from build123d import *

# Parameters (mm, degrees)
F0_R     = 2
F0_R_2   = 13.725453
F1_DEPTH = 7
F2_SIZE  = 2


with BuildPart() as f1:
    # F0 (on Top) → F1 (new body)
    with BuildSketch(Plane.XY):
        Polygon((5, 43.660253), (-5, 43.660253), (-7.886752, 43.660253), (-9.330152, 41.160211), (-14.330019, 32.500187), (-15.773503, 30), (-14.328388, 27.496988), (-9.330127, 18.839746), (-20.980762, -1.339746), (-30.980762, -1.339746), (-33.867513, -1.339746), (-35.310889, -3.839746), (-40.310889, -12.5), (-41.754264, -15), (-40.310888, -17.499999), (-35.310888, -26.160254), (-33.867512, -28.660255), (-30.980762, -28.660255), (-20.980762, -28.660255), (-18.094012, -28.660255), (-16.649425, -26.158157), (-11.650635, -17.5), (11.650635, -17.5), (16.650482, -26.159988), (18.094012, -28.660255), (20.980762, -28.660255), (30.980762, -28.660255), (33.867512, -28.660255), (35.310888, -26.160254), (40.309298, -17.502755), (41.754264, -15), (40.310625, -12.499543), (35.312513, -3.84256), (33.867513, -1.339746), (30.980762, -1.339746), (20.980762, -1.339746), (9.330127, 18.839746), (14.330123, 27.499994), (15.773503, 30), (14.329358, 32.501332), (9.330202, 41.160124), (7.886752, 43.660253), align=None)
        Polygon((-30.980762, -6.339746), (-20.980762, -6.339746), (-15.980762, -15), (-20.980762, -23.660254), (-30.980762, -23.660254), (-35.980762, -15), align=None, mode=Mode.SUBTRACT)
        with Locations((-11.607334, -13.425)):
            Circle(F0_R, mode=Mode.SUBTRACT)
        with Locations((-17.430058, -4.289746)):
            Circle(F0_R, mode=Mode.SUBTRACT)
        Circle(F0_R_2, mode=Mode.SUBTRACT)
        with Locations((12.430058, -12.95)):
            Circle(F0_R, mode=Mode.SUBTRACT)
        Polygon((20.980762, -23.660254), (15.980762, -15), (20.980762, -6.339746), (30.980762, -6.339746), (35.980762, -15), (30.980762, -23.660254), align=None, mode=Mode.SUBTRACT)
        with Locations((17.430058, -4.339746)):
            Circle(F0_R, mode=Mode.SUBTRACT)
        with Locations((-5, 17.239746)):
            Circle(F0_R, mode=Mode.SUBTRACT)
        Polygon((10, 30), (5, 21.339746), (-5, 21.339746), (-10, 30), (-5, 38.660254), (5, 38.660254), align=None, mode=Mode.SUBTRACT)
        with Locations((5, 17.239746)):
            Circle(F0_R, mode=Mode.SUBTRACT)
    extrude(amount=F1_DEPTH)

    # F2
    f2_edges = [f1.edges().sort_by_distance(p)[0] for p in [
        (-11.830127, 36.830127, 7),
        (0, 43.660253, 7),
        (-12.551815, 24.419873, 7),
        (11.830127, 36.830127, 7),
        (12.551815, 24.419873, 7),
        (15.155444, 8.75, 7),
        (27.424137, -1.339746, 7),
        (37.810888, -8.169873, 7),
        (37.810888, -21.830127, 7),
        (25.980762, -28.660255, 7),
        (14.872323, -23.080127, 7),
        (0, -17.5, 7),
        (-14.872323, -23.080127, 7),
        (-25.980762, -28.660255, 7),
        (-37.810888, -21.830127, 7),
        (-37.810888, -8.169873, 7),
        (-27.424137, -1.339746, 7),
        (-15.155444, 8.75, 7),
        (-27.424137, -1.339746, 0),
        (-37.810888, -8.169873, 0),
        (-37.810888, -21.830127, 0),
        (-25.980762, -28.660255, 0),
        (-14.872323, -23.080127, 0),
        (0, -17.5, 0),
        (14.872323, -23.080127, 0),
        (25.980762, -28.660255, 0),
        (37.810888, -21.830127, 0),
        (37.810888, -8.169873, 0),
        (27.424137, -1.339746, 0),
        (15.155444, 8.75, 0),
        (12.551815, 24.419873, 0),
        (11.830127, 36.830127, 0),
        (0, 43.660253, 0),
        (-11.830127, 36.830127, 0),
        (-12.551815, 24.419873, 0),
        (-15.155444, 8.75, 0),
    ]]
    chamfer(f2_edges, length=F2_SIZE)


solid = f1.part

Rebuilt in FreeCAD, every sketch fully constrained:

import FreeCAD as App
import Part
import Sketcher

V = App.Vector
Q = App.Units.Quantity


def edges_at(feature, points):
    """Names of the edges that pass closest to the given points."""
    edges = feature.Shape.Edges
    near = lambda p: min(range(len(edges)), key=lambda i: edges[i].distToShape(Part.Vertex(*p))[0])
    return sorted({f"Edge{near(p) + 1}" for p in points})

doc = App.newDocument("Part")
body = doc.addObject("PartDesign::Body", "Body")

# Sketch on XY plane
sketch1 = doc.addObject("Sketcher::SketchObject", "Sketch")
body.addObject(sketch1)
sketch1.AttachmentSupport = (doc.XY_Plane, [""])
sketch1.MapMode = "FlatFace"
sketch1.addGeometry(Part.LineSegment(V(-7.886752, 43.660253, 0), V(-9.330152, 41.160211, 0)), False)
sketch1.addGeometry(Part.LineSegment(V(-9.330152, 41.160211, 0), V(-14.330019, 32.500187, 0)), False)
sketch1.addGeometry(Part.LineSegment(V(-14.330019, 32.500187, 0), V(-15.773503, 30, 0)), False)
sketch1.addGeometry(Part.LineSegment(V(-15.773503, 30, 0), V(-14.328388, 27.496988, 0)), False)
sketch1.addGeometry(Part.LineSegment(V(-14.328388, 27.496988, 0), V(-9.330127, 18.839746, 0)), False)
sketch1.addGeometry(Part.LineSegment(V(-9.330127, 18.839746, 0), V(-20.980762, -1.339746, 0)), False)
sketch1.addGeometry(Part.LineSegment(V(-20.980762, -1.339746, 0), V(-33.867513, -1.339746, 0)), False)
sketch1.addGeometry(Part.LineSegment(V(-33.867513, -1.339746, 0), V(-35.310889, -3.839746, 0)), False)
sketch1.addGeometry(Part.LineSegment(V(-35.310889, -3.839746, 0), V(-40.310889, -12.5, 0)), False)
sketch1.addGeometry(Part.LineSegment(V(-40.310889, -12.5, 0), V(-41.754264, -15, 0)), False)
sketch1.addGeometry(Part.LineSegment(V(-41.754264, -15, 0), V(-40.310888, -17.499999, 0)), False)
sketch1.addGeometry(Part.LineSegment(V(-40.310888, -17.499999, 0), V(-35.310888, -26.160254, 0)), False)
sketch1.addGeometry(Part.LineSegment(V(-35.310888, -26.160254, 0), V(-33.867512, -28.660255, 0)), False)
sketch1.addGeometry(Part.LineSegment(V(-33.867512, -28.660255, 0), V(-18.094012, -28.660255, 0)), False)
sketch1.addGeometry(Part.LineSegment(V(-18.094012, -28.660255, 0), V(-16.649425, -26.158157, 0)), False)
sketch1.addGeometry(Part.LineSegment(V(-16.649425, -26.158157, 0), V(-11.650635, -17.5, 0)), False)
sketch1.addGeometry(Part.LineSegment(V(-11.650635, -17.5, 0), V(11.650635, -17.5, 0)), False)
sketch1.addGeometry(Part.LineSegment(V(11.650635, -17.5, 0), V(16.650482, -26.159988, 0)), False)
sketch1.addGeometry(Part.LineSegment(V(16.650482, -26.159988, 0), V(18.094012, -28.660255, 0)), False)
sketch1.addGeometry(Part.LineSegment(V(18.094012, -28.660255, 0), V(33.867512, -28.660255, 0)), False)
sketch1.addGeometry(Part.LineSegment(V(33.867512, -28.660255, 0), V(35.310888, -26.160254, 0)), False)
sketch1.addGeometry(Part.LineSegment(V(35.310888, -26.160254, 0), V(40.309298, -17.502755, 0)), False)
sketch1.addGeometry(Part.LineSegment(V(40.309298, -17.502755, 0), V(41.754264, -15, 0)), False)
sketch1.addGeometry(Part.LineSegment(V(41.754264, -15, 0), V(40.310625, -12.499543, 0)), False)
sketch1.addGeometry(Part.LineSegment(V(40.310625, -12.499543, 0), V(35.312513, -3.84256, 0)), False)
sketch1.addGeometry(Part.LineSegment(V(35.312513, -3.84256, 0), V(33.867513, -1.339746, 0)), False)
sketch1.addGeometry(Part.LineSegment(V(33.867513, -1.339746, 0), V(20.980762, -1.339746, 0)), False)
sketch1.addGeometry(Part.LineSegment(V(20.980762, -1.339746, 0), V(9.330127, 18.839746, 0)), False)
sketch1.addGeometry(Part.LineSegment(V(9.330127, 18.839746, 0), V(14.330123, 27.499994, 0)), False)
sketch1.addGeometry(Part.LineSegment(V(14.330123, 27.499994, 0), V(15.773503, 30, 0)), False)
sketch1.addGeometry(Part.LineSegment(V(15.773503, 30, 0), V(14.329358, 32.501332, 0)), False)
sketch1.addGeometry(Part.LineSegment(V(14.329358, 32.501332, 0), V(9.330202, 41.160124, 0)), False)
sketch1.addGeometry(Part.LineSegment(V(9.330202, 41.160124, 0), V(7.886752, 43.660253, 0)), False)
sketch1.addGeometry(Part.LineSegment(V(7.886752, 43.660253, 0), V(-7.886752, 43.660253, 0)), False)
sketch1.addGeometry(Part.LineSegment(V(-35.980762, -15, 0), V(-30.980762, -6.339746, 0)), False)
sketch1.addGeometry(Part.LineSegment(V(-30.980762, -6.339746, 0), V(-20.980762, -6.339746, 0)), False)
sketch1.addGeometry(Part.LineSegment(V(-20.980762, -6.339746, 0), V(-15.980762, -15, 0)), False)
sketch1.addGeometry(Part.LineSegment(V(-15.980762, -15, 0), V(-20.980762, -23.660254, 0)), False)
sketch1.addGeometry(Part.LineSegment(V(-20.980762, -23.660254, 0), V(-30.980762, -23.660254, 0)), False)
sketch1.addGeometry(Part.LineSegment(V(-30.980762, -23.660254, 0), V(-35.980762, -15, 0)), False)
sketch1.addGeometry(Part.Circle(V(-11.607334, -13.425, 0), V(0, 0, 1), 2), False)
sketch1.addGeometry(Part.Circle(V(-17.430058, -4.289746, 0), V(0, 0, 1), 2), False)
sketch1.addGeometry(Part.Circle(V(12.430058, -12.95, 0), V(0, 0, 1), 2), False)
sketch1.addGeometry(Part.LineSegment(V(30.980762, -23.660254, 0), V(20.980762, -23.660254, 0)), False)
sketch1.addGeometry(Part.LineSegment(V(20.980762, -23.660254, 0), V(15.980762, -15, 0)), False)
sketch1.addGeometry(Part.LineSegment(V(15.980762, -15, 0), V(20.980762, -6.339746, 0)), False)
sketch1.addGeometry(Part.LineSegment(V(20.980762, -6.339746, 0), V(30.980762, -6.339746, 0)), False)
sketch1.addGeometry(Part.LineSegment(V(30.980762, -6.339746, 0), V(35.980762, -15, 0)), False)
sketch1.addGeometry(Part.LineSegment(V(35.980762, -15, 0), V(30.980762, -23.660254, 0)), False)
sketch1.addGeometry(Part.Circle(V(17.430058, -4.339746, 0), V(0, 0, 1), 2), False)
sketch1.addGeometry(Part.Circle(V(0, 0, 0), V(0, 0, 1), 13.725453), False)
sketch1.addGeometry(Part.Circle(V(-5, 17.239746, 0), V(0, 0, 1), 2), False)
sketch1.addGeometry(Part.Circle(V(5, 17.239746, 0), V(0, 0, 1), 2), False)
sketch1.addGeometry(Part.LineSegment(V(5, 38.660254, 0), V(10, 30, 0)), False)
sketch1.addGeometry(Part.LineSegment(V(10, 30, 0), V(5, 21.339746, 0)), False)
sketch1.addGeometry(Part.LineSegment(V(5, 21.339746, 0), V(-5, 21.339746, 0)), False)
sketch1.addGeometry(Part.LineSegment(V(-5, 21.339746, 0), V(-10, 30, 0)), False)
sketch1.addGeometry(Part.LineSegment(V(-10, 30, 0), V(-5, 38.660254, 0)), False)
sketch1.addGeometry(Part.LineSegment(V(-5, 38.660254, 0), V(5, 38.660254, 0)), False)
sketch1.addConstraint(Sketcher.Constraint("Coincident", 0, 2, 1, 1))
sketch1.addConstraint(Sketcher.Constraint("Coincident", 1, 2, 2, 1))
sketch1.addConstraint(Sketcher.Constraint("Coincident", 2, 2, 3, 1))
sketch1.addConstraint(Sketcher.Constraint("Coincident", 3, 2, 4, 1))
sketch1.addConstraint(Sketcher.Constraint("Coincident", 4, 2, 5, 1))
sketch1.addConstraint(Sketcher.Constraint("Coincident", 5, 2, 6, 1))
sketch1.addConstraint(Sketcher.Constraint("Coincident", 6, 2, 7, 1))
sketch1.addConstraint(Sketcher.Constraint("Coincident", 7, 2, 8, 1))
sketch1.addConstraint(Sketcher.Constraint("Coincident", 8, 2, 9, 1))
sketch1.addConstraint(Sketcher.Constraint("Coincident", 9, 2, 10, 1))
sketch1.addConstraint(Sketcher.Constraint("Coincident", 10, 2, 11, 1))
sketch1.addConstraint(Sketcher.Constraint("Coincident", 11, 2, 12, 1))
sketch1.addConstraint(Sketcher.Constraint("Coincident", 12, 2, 13, 1))
sketch1.addConstraint(Sketcher.Constraint("Coincident", 13, 2, 14, 1))
sketch1.addConstraint(Sketcher.Constraint("Coincident", 14, 2, 15, 1))
sketch1.addConstraint(Sketcher.Constraint("Coincident", 15, 2, 16, 1))
sketch1.addConstraint(Sketcher.Constraint("Coincident", 16, 2, 17, 1))
sketch1.addConstraint(Sketcher.Constraint("Coincident", 17, 2, 18, 1))
sketch1.addConstraint(Sketcher.Constraint("Coincident", 18, 2, 19, 1))
sketch1.addConstraint(Sketcher.Constraint("Coincident", 19, 2, 20, 1))
sketch1.addConstraint(Sketcher.Constraint("Coincident", 20, 2, 21, 1))
sketch1.addConstraint(Sketcher.Constraint("Coincident", 21, 2, 22, 1))
sketch1.addConstraint(Sketcher.Constraint("Coincident", 22, 2, 23, 1))
sketch1.addConstraint(Sketcher.Constraint("Coincident", 23, 2, 24, 1))
sketch1.addConstraint(Sketcher.Constraint("Coincident", 24, 2, 25, 1))
sketch1.addConstraint(Sketcher.Constraint("Coincident", 25, 2, 26, 1))
sketch1.addConstraint(Sketcher.Constraint("Coincident", 26, 2, 27, 1))
sketch1.addConstraint(Sketcher.Constraint("Coincident", 27, 2, 28, 1))
sketch1.addConstraint(Sketcher.Constraint("Coincident", 28, 2, 29, 1))
sketch1.addConstraint(Sketcher.Constraint("Coincident", 29, 2, 30, 1))
sketch1.addConstraint(Sketcher.Constraint("Coincident", 30, 2, 31, 1))
sketch1.addConstraint(Sketcher.Constraint("Coincident", 31, 2, 32, 1))
sketch1.addConstraint(Sketcher.Constraint("Coincident", 32, 2, 33, 1))
sketch1.addConstraint(Sketcher.Constraint("Coincident", 33, 2, 0, 1))
sketch1.addConstraint(Sketcher.Constraint("Coincident", 34, 2, 35, 1))
sketch1.addConstraint(Sketcher.Constraint("Coincident", 35, 2, 36, 1))
sketch1.addConstraint(Sketcher.Constraint("Coincident", 36, 2, 37, 1))
sketch1.addConstraint(Sketcher.Constraint("Coincident", 37, 2, 38, 1))
sketch1.addConstraint(Sketcher.Constraint("Coincident", 38, 2, 39, 1))
sketch1.addConstraint(Sketcher.Constraint("Coincident", 39, 2, 34, 1))
sketch1.addConstraint(Sketcher.Constraint("Coincident", 43, 2, 44, 1))
sketch1.addConstraint(Sketcher.Constraint("Coincident", 44, 2, 45, 1))
sketch1.addConstraint(Sketcher.Constraint("Coincident", 45, 2, 46, 1))
sketch1.addConstraint(Sketcher.Constraint("Coincident", 46, 2, 47, 1))
sketch1.addConstraint(Sketcher.Constraint("Coincident", 47, 2, 48, 1))
sketch1.addConstraint(Sketcher.Constraint("Coincident", 48, 2, 43, 1))
sketch1.addConstraint(Sketcher.Constraint("Coincident", 53, 2, 54, 1))
sketch1.addConstraint(Sketcher.Constraint("Coincident", 54, 2, 55, 1))
sketch1.addConstraint(Sketcher.Constraint("Coincident", 55, 2, 56, 1))
sketch1.addConstraint(Sketcher.Constraint("Coincident", 56, 2, 57, 1))
sketch1.addConstraint(Sketcher.Constraint("Coincident", 57, 2, 58, 1))
sketch1.addConstraint(Sketcher.Constraint("Coincident", 58, 2, 53, 1))
sketch1.addConstraint(Sketcher.Constraint("Horizontal", 6))
sketch1.addConstraint(Sketcher.Constraint("Horizontal", 13))
sketch1.addConstraint(Sketcher.Constraint("Horizontal", 16))
sketch1.addConstraint(Sketcher.Constraint("Horizontal", 19))
sketch1.addConstraint(Sketcher.Constraint("Horizontal", 26))
sketch1.addConstraint(Sketcher.Constraint("Horizontal", 33))
sketch1.addConstraint(Sketcher.Constraint("Horizontal", 35))
sketch1.addConstraint(Sketcher.Constraint("Horizontal", 38))
sketch1.addConstraint(Sketcher.Constraint("Horizontal", 43))
sketch1.addConstraint(Sketcher.Constraint("Horizontal", 46))
sketch1.addConstraint(Sketcher.Constraint("Horizontal", 55))
sketch1.addConstraint(Sketcher.Constraint("Horizontal", 58))
sketch1.addConstraint(Sketcher.Constraint("Coincident", 50, 3, -1, 1))
sketch1.addConstraint(Sketcher.Constraint("Equal", 40, 41))
sketch1.addConstraint(Sketcher.Constraint("Equal", 41, 42))
sketch1.addConstraint(Sketcher.Constraint("Equal", 42, 49))
sketch1.addConstraint(Sketcher.Constraint("Equal", 49, 51))
sketch1.addConstraint(Sketcher.Constraint("Equal", 51, 52))
sketch1.addConstraint(Sketcher.Constraint("Symmetric", 51, 3, 52, 3, -2))
sketch1.addConstraint(Sketcher.Constraint("Symmetric", 13, 2, 18, 2, -2))
sketch1.addConstraint(Sketcher.Constraint("Symmetric", 11, 2, 20, 2, -2))
sketch1.addConstraint(Sketcher.Constraint("Symmetric", 9, 2, 22, 2, -2))
sketch1.addConstraint(Sketcher.Constraint("Symmetric", 6, 2, 25, 2, -2))
sketch1.addConstraint(Sketcher.Constraint("Symmetric", 4, 2, 27, 2, -2))
sketch1.addConstraint(Sketcher.Constraint("Symmetric", 2, 2, 29, 2, -2))
sketch1.addConstraint(Sketcher.Constraint("Symmetric", 37, 2, 43, 2, -2))
sketch1.addConstraint(Sketcher.Constraint("Symmetric", 36, 2, 44, 2, -2))
sketch1.addConstraint(Sketcher.Constraint("Symmetric", 35, 2, 45, 2, -2))
sketch1.addConstraint(Sketcher.Constraint("Symmetric", 39, 2, 47, 2, -2))
sketch1.addConstraint(Sketcher.Constraint("Symmetric", 53, 2, 56, 2, -2))
sketch1.addConstraint(Sketcher.Constraint("Parallel", 0, 1))
sketch1.addConstraint(Sketcher.Constraint("Parallel", 1, 2))
sketch1.addConstraint(Sketcher.Constraint("Parallel", 3, 4))
sketch1.addConstraint(Sketcher.Constraint("Parallel", 2, 5))
sketch1.addConstraint(Sketcher.Constraint("Parallel", 5, 7))
sketch1.addConstraint(Sketcher.Constraint("Parallel", 7, 8))
sketch1.addConstraint(Sketcher.Constraint("Parallel", 8, 9))
sketch1.addConstraint(Sketcher.Constraint("Parallel", 4, 10))
sketch1.addConstraint(Sketcher.Constraint("Parallel", 10, 11))
sketch1.addConstraint(Sketcher.Constraint("Parallel", 11, 12))
sketch1.addConstraint(Sketcher.Constraint("Parallel", 9, 14))
sketch1.addConstraint(Sketcher.Constraint("Parallel", 14, 15))
sketch1.addConstraint(Sketcher.Constraint("Parallel", 12, 17))
sketch1.addConstraint(Sketcher.Constraint("Parallel", 17, 18))
sketch1.addConstraint(Sketcher.Constraint("Parallel", 15, 20))
sketch1.addConstraint(Sketcher.Constraint("Parallel", 20, 21))
sketch1.addConstraint(Sketcher.Constraint("Parallel", 21, 22))
sketch1.addConstraint(Sketcher.Constraint("Parallel", 18, 23))
sketch1.addConstraint(Sketcher.Constraint("Parallel", 23, 24))
sketch1.addConstraint(Sketcher.Constraint("Parallel", 25, 27))
sketch1.addConstraint(Sketcher.Constraint("Parallel", 22, 28))
sketch1.addConstraint(Sketcher.Constraint("Parallel", 27, 30))
sketch1.addConstraint(Sketcher.Constraint("Parallel", 30, 31))
sketch1.addConstraint(Sketcher.Constraint("Parallel", 31, 32))
sketch1.addConstraint(Sketcher.Constraint("Parallel", 29, 34))
sketch1.addConstraint(Sketcher.Constraint("Parallel", 32, 36))
sketch1.addConstraint(Sketcher.Constraint("Parallel", 34, 37))
sketch1.addConstraint(Sketcher.Constraint("Parallel", 36, 39))
sketch1.addConstraint(Sketcher.Constraint("Parallel", 44, 47))
sketch1.addConstraint(Sketcher.Constraint("Parallel", 45, 48))
sketch1.addConstraint(Sketcher.Constraint("Parallel", 47, 53))
sketch1.addConstraint(Sketcher.Constraint("Parallel", 48, 54))
sketch1.addConstraint(Sketcher.Constraint("Parallel", 53, 56))
sketch1.addConstraint(Sketcher.Constraint("Parallel", 54, 57))
sketch1.addConstraint(Sketcher.Constraint("Horizontal", 10, 2, 15, 2))
sketch1.addConstraint(Sketcher.Constraint("Horizontal", 22, 2, 36, 2))
sketch1.addConstraint(Sketcher.Constraint("Horizontal", 36, 2, 39, 2))
sketch1.addConstraint(Sketcher.Constraint("Horizontal", 29, 2, 53, 2))
sketch1.addConstraint(Sketcher.Constraint("Vertical", 8, 2, 10, 2))
sketch1.addConstraint(Sketcher.Constraint("Vertical", 7, 2, 11, 2))
sketch1.addConstraint(Sketcher.Constraint("Vertical", 6, 2, 12, 2))
sketch1.addConstraint(Sketcher.Constraint("Vertical", 5, 2, 35, 2))
sketch1.addConstraint(Sketcher.Constraint("Vertical", 35, 2, 37, 2))
sketch1.addConstraint(Sketcher.Constraint("Vertical", 52, 3, 54, 2))
sketch1.addConstraint(Sketcher.Constraint("Vertical", 55, 2, 57, 2))
sketch1.addConstraint(Sketcher.Constraint("Equal", 46, 55))
sketch1.addConstraint(Sketcher.Constraint("Equal", 7, 9))
sketch1.addConstraint(Sketcher.Constraint("Equal", 11, 34))
sketch1.addConstraint(Sketcher.Constraint("Equal", 48, 53))
sketch1.addConstraint(Sketcher.Constraint("Diameter", 40, Q("4 mm")))
sketch1.addConstraint(Sketcher.Constraint("DistanceX", 35, 1, 35, 2, Q("10 mm")))
sketch1.addConstraint(Sketcher.Constraint("Angle", 0, Q("-120.000001 deg")))
sketch1.addConstraint(Sketcher.Constraint("Distance", 8, Q("10 mm")))
sketch1.addConstraint(Sketcher.Constraint("DistanceY", -1, 1, 2, 2, Q("30 mm")))
sketch1.addConstraint(Sketcher.Constraint("DistanceY", 9, 2, -1, 1, Q("15 mm")))
sketch1.addConstraint(Sketcher.Constraint("DistanceX", 42, 3, 49, 3, Q("5 mm")))
sketch1.addConstraint(Sketcher.Constraint("DistanceY", 10, 2, 8, 2, Q("4.999999 mm")))
sketch1.addConstraint(Sketcher.Constraint("DistanceY", 49, 3, 25, 2, Q("3 mm")))
sketch1.addConstraint(Sketcher.Constraint("DistanceY", 57, 2, 33, 2, Q("4.999999 mm")))
sketch1.addConstraint(Sketcher.Constraint("DistanceY", 51, 3, 4, 2, Q("1.6 mm")))
sketch1.addConstraint(Sketcher.Constraint("DistanceY", 52, 3, 54, 2, Q("4.1 mm")))
sketch1.addConstraint(Sketcher.Constraint("Distance", 25, Q("2.890001 mm")))
sketch1.addConstraint(Sketcher.Constraint("DistanceY", 42, 3, -1, 1, Q("12.95 mm")))
sketch1.addConstraint(Sketcher.Constraint("DistanceY", 49, 3, 41, 3, Q("0.05 mm")))
sketch1.addConstraint(Sketcher.Constraint("Diameter", 50, Q("27.450906 mm")))
sketch1.addConstraint(Sketcher.Constraint("DistanceX", 13, 1, 13, 2, Q("15.7735 mm")))
sketch1.addConstraint(Sketcher.Constraint("DistanceY", 40, 3, -1, 1, Q("13.425 mm")))
sketch1.addConstraint(Sketcher.Constraint("Distance", 0, Q("2.8868 mm")))
sketch1.addConstraint(Sketcher.Constraint("Distance", 32, Q("2.8869 mm")))
sketch1.addConstraint(Sketcher.Constraint("DistanceX", 6, 2, 6, 1, Q("12.886751 mm")))
sketch1.addConstraint(Sketcher.Constraint("DistanceX", 16, 1, 16, 2, Q("23.30127 mm")))
sketch1.addConstraint(Sketcher.Constraint("DistanceY", 3, 2, 1, 2, Q("5.003199 mm")))
sketch1.addConstraint(Sketcher.Constraint("DistanceY", 13, 2, 14, 2, Q("2.502098 mm")))
sketch1.addConstraint(Sketcher.Constraint("DistanceX", 15, 2, 40, 3, Q("0.043301 mm")))
sketch1.addConstraint(Sketcher.Constraint("DistanceY", 20, 2, 21, 2, Q("8.657499 mm")))
sketch1.addConstraint(Sketcher.Constraint("Distance", 3, Q("2.890229 mm")))
sketch1.addConstraint(Sketcher.Constraint("Distance", 18, Q("2.88706 mm")))
sketch1.addConstraint(Sketcher.Constraint("Distance", 23, Q("2.887279 mm")))
sketch1.addConstraint(Sketcher.Constraint("Distance", 29, Q("2.886759 mm")))
sketch1.addConstraint(Sketcher.Constraint("Distance", 30, Q("2.88829 mm")))
sketch1.addConstraint(Sketcher.Constraint("DistanceX", -1, 1, 42, 3, Q("12.430058 mm")))
sketch1.addConstraint(Sketcher.Constraint("DistanceX", 41, 3, 1, 2, Q("3.100039 mm")))
pad1 = doc.addObject("PartDesign::Pad", "Pad")
body.addObject(pad1)
pad1.Profile = sketch1
pad1.Length = 7
doc.recompute()

chamfer = doc.addObject("PartDesign::Chamfer", "Chamfer")
body.addObject(chamfer)
chamfer.Base = (pad1, edges_at(pad1, [
    (-11.83, 36.83, 7),
    (0, 43.66, 7),
    (-11.829, 23.168, 7),
    (11.83, 36.831, 7),
    (11.83, 23.17, 7),
    (15.155, 8.75, 7),
    (27.424, -1.34, 7),
    (37.812, -8.171, 7),
    (37.81, -21.832, 7),
    (25.981, -28.66, 7),
    (14.151, -21.83, 7),
    (0, -17.5, 7),
    (-14.15, -21.829, 7),
    (-25.981, -28.66, 7),
    (-37.811, -21.83, 7),
    (-37.811, -8.17, 7),
    (-27.424, -1.34, 7),
    (-15.155, 8.75, 7),
    (-27.424, -1.34, 0),
    (-37.811, -8.17, 0),
    (-37.811, -21.83, 0),
    (-25.981, -28.66, 0),
    (-14.15, -21.829, 0),
    (0, -17.5, 0),
    (14.151, -21.83, 0),
    (25.981, -28.66, 0),
    (37.81, -21.832, 0),
    (37.812, -8.171, 0),
    (27.424, -1.34, 0),
    (15.155, 8.75, 0),
    (11.83, 23.17, 0),
    (11.83, 36.831, 0),
    (0, 43.66, 0),
    (-11.83, 36.83, 0),
    (-11.829, 23.168, 0),
    (-15.155, 8.75, 0),
]))
chamfer.Size = 2

doc.recompute()
